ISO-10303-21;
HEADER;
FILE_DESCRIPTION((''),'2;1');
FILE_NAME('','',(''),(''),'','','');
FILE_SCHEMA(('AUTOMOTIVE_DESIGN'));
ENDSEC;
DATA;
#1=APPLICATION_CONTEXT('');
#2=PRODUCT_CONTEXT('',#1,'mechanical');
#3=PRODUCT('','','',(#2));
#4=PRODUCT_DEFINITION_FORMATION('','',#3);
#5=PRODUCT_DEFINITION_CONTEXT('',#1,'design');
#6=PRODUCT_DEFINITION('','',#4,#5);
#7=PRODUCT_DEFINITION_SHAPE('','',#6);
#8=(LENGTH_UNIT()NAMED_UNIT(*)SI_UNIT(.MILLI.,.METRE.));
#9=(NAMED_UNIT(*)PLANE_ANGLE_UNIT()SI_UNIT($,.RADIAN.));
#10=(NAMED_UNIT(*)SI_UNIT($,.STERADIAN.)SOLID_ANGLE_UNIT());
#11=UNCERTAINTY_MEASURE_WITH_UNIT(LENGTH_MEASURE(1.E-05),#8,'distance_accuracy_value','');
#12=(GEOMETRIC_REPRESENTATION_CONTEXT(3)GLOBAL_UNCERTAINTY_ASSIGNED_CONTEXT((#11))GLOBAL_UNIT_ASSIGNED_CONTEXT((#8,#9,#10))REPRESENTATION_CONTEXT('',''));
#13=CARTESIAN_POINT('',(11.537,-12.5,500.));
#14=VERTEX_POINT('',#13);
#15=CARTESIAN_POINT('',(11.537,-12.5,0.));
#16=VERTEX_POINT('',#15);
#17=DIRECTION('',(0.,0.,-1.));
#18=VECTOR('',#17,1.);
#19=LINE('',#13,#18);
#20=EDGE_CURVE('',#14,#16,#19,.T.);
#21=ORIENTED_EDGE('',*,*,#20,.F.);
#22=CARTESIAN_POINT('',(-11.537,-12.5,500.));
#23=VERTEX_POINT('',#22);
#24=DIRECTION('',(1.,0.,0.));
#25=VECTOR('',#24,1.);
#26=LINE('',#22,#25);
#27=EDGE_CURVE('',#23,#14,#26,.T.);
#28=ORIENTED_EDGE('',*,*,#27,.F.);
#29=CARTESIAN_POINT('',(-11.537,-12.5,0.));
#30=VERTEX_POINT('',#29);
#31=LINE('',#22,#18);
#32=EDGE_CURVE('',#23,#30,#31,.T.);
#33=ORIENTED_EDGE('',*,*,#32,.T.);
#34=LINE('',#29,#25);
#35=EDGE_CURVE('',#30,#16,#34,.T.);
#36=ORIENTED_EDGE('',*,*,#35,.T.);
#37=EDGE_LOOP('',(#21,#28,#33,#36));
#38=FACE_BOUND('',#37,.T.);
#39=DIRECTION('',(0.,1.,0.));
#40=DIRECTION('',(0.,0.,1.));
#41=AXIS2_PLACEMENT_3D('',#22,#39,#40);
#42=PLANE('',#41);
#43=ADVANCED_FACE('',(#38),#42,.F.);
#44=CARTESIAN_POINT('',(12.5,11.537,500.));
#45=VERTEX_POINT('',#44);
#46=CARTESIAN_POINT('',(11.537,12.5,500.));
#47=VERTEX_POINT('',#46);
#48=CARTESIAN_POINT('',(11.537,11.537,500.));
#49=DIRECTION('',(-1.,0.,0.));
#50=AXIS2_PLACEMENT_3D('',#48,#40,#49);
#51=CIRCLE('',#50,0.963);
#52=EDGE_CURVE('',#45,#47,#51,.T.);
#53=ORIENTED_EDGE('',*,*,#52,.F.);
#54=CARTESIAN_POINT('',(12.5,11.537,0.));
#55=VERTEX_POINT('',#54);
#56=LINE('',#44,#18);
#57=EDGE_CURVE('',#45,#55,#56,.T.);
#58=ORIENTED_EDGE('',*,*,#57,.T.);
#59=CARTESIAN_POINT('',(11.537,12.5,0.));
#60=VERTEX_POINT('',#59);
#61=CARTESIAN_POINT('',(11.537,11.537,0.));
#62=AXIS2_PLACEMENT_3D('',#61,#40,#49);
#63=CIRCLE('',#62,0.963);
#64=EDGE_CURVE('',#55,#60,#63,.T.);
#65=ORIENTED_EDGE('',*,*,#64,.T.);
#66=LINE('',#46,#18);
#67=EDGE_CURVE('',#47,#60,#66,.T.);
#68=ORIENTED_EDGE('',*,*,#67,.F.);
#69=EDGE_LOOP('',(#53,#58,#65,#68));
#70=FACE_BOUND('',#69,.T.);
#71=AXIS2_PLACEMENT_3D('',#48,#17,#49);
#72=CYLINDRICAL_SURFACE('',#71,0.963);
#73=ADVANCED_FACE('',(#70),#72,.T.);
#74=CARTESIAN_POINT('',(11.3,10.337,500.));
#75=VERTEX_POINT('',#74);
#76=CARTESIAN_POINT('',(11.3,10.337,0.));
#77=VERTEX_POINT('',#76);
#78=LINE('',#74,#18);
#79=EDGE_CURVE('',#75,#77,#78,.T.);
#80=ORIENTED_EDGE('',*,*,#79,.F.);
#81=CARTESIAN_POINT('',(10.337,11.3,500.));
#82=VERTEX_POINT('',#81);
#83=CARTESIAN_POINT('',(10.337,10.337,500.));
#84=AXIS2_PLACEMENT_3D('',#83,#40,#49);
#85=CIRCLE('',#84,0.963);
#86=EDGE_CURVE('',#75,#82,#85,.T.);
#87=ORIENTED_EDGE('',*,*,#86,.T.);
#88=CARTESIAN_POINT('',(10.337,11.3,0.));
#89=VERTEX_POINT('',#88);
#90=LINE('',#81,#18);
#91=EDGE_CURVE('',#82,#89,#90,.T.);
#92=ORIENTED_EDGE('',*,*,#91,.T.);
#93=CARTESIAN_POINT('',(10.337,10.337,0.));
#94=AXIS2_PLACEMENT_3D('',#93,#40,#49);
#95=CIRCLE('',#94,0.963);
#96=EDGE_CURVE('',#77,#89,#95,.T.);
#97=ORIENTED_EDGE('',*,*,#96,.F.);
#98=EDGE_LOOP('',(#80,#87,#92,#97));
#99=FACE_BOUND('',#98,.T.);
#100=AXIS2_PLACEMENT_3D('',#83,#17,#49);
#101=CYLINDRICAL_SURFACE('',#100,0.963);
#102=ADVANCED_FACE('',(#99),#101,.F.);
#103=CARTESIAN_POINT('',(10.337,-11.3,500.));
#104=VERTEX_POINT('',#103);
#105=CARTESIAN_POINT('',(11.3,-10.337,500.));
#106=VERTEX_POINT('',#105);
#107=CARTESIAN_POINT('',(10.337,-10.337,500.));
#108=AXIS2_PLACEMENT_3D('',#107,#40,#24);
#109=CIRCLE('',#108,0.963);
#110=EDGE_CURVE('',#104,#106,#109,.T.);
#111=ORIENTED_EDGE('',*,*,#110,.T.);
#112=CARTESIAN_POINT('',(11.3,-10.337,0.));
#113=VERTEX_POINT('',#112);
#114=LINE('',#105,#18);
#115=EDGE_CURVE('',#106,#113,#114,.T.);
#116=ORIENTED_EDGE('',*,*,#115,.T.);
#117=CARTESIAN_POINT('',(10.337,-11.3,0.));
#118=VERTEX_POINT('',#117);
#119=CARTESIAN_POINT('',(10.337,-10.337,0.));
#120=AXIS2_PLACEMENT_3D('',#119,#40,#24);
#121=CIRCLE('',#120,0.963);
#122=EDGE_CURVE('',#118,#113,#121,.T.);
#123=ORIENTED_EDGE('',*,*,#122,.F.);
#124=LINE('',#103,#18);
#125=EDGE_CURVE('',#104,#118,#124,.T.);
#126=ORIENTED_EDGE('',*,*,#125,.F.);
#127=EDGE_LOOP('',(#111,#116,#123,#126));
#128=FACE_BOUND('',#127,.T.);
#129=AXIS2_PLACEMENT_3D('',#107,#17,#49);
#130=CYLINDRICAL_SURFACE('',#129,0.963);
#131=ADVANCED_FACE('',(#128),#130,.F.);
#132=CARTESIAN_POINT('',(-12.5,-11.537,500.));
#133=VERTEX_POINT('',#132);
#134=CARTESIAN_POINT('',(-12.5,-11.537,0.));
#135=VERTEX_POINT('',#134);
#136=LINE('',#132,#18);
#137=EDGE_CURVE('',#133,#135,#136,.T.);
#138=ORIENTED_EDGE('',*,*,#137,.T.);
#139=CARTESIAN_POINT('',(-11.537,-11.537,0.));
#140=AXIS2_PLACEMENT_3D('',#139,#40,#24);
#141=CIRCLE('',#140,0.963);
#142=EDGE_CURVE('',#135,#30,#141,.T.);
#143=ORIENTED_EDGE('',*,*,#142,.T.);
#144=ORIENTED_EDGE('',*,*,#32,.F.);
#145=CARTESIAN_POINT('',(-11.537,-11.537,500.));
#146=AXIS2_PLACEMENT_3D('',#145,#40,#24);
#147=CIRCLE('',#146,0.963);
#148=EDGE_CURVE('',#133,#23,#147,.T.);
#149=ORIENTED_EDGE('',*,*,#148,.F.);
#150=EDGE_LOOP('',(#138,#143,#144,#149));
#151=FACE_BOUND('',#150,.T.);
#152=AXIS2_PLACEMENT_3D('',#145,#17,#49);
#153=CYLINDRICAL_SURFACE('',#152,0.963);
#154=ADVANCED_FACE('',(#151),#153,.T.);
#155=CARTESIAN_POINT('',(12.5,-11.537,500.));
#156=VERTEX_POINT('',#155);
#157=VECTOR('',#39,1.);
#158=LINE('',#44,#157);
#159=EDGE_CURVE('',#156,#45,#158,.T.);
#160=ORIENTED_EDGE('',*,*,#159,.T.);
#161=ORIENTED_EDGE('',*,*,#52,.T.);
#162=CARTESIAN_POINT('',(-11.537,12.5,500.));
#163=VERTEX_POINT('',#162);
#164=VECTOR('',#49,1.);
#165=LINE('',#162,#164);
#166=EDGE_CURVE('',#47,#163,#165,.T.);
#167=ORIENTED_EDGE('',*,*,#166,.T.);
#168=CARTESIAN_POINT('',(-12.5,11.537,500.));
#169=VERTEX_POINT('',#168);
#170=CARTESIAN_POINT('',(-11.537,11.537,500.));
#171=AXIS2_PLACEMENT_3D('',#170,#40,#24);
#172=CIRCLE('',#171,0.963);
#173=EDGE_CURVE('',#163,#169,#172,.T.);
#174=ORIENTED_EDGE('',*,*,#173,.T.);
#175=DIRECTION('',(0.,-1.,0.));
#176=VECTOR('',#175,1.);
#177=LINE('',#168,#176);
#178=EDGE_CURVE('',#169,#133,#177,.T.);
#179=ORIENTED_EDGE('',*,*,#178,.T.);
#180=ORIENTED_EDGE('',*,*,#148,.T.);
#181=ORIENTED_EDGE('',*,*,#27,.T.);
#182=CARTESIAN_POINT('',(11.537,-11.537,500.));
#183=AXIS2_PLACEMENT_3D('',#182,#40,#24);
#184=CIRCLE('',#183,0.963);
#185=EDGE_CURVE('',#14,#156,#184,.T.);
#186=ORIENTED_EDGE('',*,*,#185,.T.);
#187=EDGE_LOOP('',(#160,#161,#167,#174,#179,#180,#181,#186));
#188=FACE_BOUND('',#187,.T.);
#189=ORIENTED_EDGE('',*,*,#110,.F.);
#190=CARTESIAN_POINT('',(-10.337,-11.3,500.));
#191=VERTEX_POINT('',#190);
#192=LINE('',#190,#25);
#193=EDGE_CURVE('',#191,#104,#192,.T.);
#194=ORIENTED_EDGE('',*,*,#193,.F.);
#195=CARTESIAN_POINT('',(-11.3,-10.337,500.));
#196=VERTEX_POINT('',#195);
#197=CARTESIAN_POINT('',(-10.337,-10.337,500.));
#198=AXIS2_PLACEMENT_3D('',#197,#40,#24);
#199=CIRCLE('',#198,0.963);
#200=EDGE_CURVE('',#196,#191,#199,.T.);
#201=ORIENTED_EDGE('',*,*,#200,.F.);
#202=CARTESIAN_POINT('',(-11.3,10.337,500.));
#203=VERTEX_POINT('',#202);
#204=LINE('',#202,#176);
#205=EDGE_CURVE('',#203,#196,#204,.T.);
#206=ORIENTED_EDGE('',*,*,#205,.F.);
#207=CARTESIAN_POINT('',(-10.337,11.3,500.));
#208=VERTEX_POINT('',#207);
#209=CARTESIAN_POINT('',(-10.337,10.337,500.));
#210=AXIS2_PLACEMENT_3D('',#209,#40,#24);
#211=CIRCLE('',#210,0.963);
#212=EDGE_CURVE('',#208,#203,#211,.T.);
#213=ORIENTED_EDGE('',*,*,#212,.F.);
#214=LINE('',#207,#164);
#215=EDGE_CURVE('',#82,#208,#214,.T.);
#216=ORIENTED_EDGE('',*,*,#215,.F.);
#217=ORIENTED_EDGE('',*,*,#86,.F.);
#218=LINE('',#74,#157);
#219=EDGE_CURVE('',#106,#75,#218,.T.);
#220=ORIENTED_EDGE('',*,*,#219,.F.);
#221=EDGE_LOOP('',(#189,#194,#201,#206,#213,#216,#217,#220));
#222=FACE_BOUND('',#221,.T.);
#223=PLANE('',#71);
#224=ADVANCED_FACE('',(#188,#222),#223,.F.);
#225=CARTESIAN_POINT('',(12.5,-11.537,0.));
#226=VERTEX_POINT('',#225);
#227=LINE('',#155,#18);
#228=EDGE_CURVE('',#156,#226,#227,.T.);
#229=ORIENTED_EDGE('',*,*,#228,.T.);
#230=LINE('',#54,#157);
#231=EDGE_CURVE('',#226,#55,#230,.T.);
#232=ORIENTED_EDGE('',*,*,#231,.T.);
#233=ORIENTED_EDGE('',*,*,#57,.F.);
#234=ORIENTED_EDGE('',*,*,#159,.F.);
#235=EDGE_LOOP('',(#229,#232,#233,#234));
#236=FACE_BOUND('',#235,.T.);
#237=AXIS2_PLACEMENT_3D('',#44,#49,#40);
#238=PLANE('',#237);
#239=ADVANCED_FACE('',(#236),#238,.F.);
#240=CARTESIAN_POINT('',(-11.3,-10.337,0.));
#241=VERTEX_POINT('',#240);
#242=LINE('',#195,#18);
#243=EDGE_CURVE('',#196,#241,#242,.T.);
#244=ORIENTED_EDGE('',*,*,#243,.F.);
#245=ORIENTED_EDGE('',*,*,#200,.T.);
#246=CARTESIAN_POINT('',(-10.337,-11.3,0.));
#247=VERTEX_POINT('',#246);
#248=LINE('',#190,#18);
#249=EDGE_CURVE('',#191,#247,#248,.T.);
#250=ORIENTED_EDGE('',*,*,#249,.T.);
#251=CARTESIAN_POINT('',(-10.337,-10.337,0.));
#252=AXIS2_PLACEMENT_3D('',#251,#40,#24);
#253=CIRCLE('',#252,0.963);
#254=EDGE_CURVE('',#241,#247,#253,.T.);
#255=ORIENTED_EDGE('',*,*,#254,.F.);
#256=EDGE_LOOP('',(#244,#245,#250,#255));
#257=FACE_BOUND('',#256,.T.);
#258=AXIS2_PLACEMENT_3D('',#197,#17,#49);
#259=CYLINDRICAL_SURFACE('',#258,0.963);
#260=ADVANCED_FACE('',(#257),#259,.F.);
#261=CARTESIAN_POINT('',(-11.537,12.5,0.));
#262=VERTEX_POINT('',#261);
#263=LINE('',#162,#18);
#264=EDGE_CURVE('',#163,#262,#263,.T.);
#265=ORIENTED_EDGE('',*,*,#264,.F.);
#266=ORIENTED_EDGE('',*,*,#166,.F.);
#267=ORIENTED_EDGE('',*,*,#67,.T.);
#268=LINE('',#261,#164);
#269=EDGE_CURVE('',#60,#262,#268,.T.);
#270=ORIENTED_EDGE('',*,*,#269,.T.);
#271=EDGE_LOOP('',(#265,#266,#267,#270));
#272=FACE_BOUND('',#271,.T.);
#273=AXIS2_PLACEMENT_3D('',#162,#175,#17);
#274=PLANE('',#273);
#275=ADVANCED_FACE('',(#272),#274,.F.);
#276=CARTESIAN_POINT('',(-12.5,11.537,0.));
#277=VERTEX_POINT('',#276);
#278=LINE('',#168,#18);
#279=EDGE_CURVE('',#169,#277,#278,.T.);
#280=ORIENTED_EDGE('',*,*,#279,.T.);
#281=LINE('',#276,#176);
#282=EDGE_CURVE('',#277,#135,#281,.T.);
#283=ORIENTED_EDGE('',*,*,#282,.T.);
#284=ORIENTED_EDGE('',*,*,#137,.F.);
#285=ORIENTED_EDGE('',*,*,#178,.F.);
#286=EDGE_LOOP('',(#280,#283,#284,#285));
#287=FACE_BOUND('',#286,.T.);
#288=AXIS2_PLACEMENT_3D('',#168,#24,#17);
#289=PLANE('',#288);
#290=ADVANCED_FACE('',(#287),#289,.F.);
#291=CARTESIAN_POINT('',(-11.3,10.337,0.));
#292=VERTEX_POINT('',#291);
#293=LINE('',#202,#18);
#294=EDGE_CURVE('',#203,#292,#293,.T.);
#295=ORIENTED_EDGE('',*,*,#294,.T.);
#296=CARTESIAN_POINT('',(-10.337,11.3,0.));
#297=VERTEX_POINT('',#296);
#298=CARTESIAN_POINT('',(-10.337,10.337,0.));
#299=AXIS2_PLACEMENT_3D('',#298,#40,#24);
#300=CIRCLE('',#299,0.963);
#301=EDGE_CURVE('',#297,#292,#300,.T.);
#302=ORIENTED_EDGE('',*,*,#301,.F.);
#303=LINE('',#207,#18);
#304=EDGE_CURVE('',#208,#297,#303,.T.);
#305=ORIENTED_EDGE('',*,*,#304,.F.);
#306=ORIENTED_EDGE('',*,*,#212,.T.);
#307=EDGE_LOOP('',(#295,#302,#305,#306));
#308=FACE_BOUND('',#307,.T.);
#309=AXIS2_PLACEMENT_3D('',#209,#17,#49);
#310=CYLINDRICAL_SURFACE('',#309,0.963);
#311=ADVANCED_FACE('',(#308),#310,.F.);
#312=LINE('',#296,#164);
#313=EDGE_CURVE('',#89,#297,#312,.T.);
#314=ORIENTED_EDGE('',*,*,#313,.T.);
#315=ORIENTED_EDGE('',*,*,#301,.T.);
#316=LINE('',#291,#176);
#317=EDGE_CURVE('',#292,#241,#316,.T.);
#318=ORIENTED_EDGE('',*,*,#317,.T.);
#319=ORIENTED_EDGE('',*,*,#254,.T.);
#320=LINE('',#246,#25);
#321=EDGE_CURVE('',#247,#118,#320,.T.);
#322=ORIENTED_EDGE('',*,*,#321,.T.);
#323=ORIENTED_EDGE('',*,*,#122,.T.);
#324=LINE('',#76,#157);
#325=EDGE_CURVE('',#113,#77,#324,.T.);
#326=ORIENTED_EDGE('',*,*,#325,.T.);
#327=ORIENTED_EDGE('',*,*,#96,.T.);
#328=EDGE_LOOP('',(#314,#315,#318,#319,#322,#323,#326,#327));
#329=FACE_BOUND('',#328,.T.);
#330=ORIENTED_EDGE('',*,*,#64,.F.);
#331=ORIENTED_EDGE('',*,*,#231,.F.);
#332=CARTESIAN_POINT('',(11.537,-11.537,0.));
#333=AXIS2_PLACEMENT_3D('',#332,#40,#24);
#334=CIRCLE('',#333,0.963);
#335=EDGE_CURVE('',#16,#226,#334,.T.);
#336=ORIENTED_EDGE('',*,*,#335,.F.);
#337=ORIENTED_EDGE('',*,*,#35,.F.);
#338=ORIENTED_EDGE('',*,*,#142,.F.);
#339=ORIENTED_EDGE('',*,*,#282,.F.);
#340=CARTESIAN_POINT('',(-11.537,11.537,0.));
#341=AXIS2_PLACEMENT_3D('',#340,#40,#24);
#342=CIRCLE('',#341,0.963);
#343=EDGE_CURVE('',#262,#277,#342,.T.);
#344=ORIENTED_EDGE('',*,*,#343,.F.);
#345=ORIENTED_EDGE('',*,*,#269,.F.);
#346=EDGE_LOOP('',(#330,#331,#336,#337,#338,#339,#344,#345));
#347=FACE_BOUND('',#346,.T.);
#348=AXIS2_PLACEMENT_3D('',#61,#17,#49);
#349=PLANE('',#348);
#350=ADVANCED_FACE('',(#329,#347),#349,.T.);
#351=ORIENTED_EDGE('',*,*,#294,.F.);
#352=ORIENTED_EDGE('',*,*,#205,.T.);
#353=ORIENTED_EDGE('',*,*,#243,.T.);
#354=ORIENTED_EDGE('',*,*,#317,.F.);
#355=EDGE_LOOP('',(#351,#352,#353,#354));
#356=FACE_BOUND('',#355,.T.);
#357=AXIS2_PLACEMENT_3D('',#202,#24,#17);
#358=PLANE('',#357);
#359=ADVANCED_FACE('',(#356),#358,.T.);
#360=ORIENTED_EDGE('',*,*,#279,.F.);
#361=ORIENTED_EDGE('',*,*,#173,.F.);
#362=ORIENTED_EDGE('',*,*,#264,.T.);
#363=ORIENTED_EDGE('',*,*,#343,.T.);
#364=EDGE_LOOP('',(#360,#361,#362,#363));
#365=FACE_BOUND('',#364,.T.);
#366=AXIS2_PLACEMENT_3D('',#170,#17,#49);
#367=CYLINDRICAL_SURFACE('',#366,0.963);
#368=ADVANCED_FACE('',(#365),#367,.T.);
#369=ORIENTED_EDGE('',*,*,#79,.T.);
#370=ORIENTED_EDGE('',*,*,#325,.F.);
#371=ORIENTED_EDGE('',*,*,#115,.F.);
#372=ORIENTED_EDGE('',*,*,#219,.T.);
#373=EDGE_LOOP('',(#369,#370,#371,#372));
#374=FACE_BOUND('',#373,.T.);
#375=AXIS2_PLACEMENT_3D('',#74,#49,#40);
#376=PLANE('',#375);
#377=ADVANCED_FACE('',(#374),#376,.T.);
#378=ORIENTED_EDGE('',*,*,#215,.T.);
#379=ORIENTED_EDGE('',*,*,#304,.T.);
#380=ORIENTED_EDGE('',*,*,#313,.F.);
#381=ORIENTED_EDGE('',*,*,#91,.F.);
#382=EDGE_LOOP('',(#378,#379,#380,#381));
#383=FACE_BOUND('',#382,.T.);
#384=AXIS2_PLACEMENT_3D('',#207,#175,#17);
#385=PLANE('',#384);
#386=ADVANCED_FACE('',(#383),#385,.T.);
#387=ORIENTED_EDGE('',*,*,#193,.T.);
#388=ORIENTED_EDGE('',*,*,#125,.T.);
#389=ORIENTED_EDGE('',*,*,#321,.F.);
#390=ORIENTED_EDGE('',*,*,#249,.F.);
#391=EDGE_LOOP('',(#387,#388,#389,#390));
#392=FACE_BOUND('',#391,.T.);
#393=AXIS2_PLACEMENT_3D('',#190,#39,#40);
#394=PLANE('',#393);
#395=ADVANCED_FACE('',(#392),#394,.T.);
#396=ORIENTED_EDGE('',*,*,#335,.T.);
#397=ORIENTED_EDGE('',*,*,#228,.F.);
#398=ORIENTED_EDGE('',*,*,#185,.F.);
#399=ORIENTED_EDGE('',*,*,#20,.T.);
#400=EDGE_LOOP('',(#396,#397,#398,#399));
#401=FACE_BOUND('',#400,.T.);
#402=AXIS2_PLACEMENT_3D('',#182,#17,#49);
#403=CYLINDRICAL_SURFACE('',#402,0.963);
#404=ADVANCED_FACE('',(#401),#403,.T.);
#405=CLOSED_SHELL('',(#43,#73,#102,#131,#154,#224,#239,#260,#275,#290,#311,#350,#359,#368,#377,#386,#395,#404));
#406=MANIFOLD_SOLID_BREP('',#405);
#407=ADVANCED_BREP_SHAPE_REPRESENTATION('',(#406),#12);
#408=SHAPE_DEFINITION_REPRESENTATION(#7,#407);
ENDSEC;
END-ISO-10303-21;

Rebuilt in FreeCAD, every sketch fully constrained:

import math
import FreeCAD as App
import Part
import Sketcher

V = App.Vector

doc = App.newDocument("Part")
params = doc.addObject("Spreadsheet::Sheet", "Params")
for row, (alias, value) in enumerate([
    ("pad1_length", "500 mm"),
], start=1):
    params.set(f"A{row}", alias)
    params.set(f"B{row}", "=" + value)
    params.setAlias(f"B{row}", alias)

body = doc.addObject("PartDesign::Body", "Body")

# Sketch on XY plane
sketch1 = body.newObject("Sketcher::SketchObject", "Sketch")
sketch1.AttachmentSupport = (doc.getObject("XY_Plane"), [""])
sketch1.MapMode = "FlatFace"
sketch1.addGeometry([
    Part.LineSegment(V(11.537, 12.5, 0), V(-11.537, 12.5, 0)),  # 0
    Part.ArcOfCircle(Part.Circle(V(-11.537, 11.537, 0), V(0, 0, 1), 0.963), math.radians(90), math.radians(180)),  # 1
    Part.LineSegment(V(-12.5, 11.537, 0), V(-12.5, -11.537, 0)),  # 2
    Part.ArcOfCircle(Part.Circle(V(-11.537, -11.537, 0), V(0, 0, 1), 0.963), math.radians(-180), math.radians(-90)),  # 3
    Part.LineSegment(V(-11.537, -12.5, 0), V(11.537, -12.5, 0)),  # 4
    Part.ArcOfCircle(Part.Circle(V(11.537, -11.537, 0), V(0, 0, 1), 0.963), math.radians(-90), math.radians(0)),  # 5
    Part.LineSegment(V(12.5, -11.537, 0), V(12.5, 11.537, 0)),  # 6
    Part.ArcOfCircle(Part.Circle(V(11.537, 11.537, 0), V(0, 0, 1), 0.963), math.radians(0), math.radians(90)),  # 7
    Part.LineSegment(V(-10.337, 11.3, 0), V(10.337, 11.3, 0)),  # 8
    Part.ArcOfCircle(Part.Circle(V(10.337, 10.337, 0), V(0, 0, 1), 0.963), math.radians(0), math.radians(90)),  # 9
    Part.LineSegment(V(11.3, 10.337, 0), V(11.3, -10.337, 0)),  # 10
    Part.ArcOfCircle(Part.Circle(V(10.337, -10.337, 0), V(0, 0, 1), 0.963), math.radians(-90), math.radians(0)),  # 11
    Part.LineSegment(V(10.337, -11.3, 0), V(-10.337, -11.3, 0)),  # 12
    Part.ArcOfCircle(Part.Circle(V(-10.337, -10.337, 0), V(0, 0, 1), 0.963), math.radians(-180), math.radians(-90)),  # 13
    Part.LineSegment(V(-11.3, -10.337, 0), V(-11.3, 10.337, 0)),  # 14
    Part.ArcOfCircle(Part.Circle(V(-10.337, 10.337, 0), V(0, 0, 1), 0.963), math.radians(90), math.radians(180)),  # 15
], False)
sketch1.addConstraint([
    Sketcher.Constraint("Tangent", 0, 2, 1, 1),
    Sketcher.Constraint("Tangent", 1, 2, 2, 1),
    Sketcher.Constraint("Tangent", 2, 2, 3, 1),
    Sketcher.Constraint("Tangent", 3, 2, 4, 1),
    Sketcher.Constraint("Tangent", 4, 2, 5, 1),
    Sketcher.Constraint("Tangent", 5, 2, 6, 1),
    Sketcher.Constraint("Tangent", 6, 2, 7, 1),
    Sketcher.Constraint("Tangent", 7, 2, 0, 1),
    Sketcher.Constraint("Tangent", 8, 2, 9, 2),
    Sketcher.Constraint("Tangent", 9, 1, 10, 1),
    Sketcher.Constraint("Tangent", 10, 2, 11, 2),
    Sketcher.Constraint("Tangent", 11, 1, 12, 1),
    Sketcher.Constraint("Tangent", 12, 2, 13, 2),
    Sketcher.Constraint("Tangent", 13, 1, 14, 1),
    Sketcher.Constraint("Tangent", 14, 2, 15, 2),
    Sketcher.Constraint("Tangent", 15, 1, 8, 1),
    Sketcher.Constraint("Horizontal", 0),
    Sketcher.Constraint("Vertical", 2),
    Sketcher.Constraint("Horizontal", 4),
    Sketcher.Constraint("Vertical", 6),
    Sketcher.Constraint("Horizontal", 8),
    Sketcher.Constraint("Vertical", 10),
    Sketcher.Constraint("Horizontal", 12),
    Sketcher.Constraint("Vertical", 14),
    Sketcher.Constraint("Equal", 1, 3),
    Sketcher.Constraint("Equal", 3, 5),
    Sketcher.Constraint("Equal", 5, 7),
    Sketcher.Constraint("Equal", 7, 9),
    Sketcher.Constraint("Equal", 9, 11),
    Sketcher.Constraint("Equal", 11, 13),
    Sketcher.Constraint("Equal", 13, 15),
    Sketcher.Constraint("Symmetric", 1, 3, 5, 3, -1, 1),
    Sketcher.Constraint("Symmetric", 9, 3, 13, 3, -1, 1),
    Sketcher.Constraint("Equal", 4, 2),
    Sketcher.Constraint("Equal", 12, 10),
    Sketcher.Constraint("Radius", 1, 0.963),
    Sketcher.Constraint("DistanceY", -1, 1, 0, 2, 12.5),
    Sketcher.Constraint("DistanceY", -1, 1, 8, 2, 11.3),
])
pad1 = body.newObject("PartDesign::Pad", "Pad")
pad1.Profile = sketch1
pad1.setExpression("Length", "Params.pad1_length")

doc.recompute()
